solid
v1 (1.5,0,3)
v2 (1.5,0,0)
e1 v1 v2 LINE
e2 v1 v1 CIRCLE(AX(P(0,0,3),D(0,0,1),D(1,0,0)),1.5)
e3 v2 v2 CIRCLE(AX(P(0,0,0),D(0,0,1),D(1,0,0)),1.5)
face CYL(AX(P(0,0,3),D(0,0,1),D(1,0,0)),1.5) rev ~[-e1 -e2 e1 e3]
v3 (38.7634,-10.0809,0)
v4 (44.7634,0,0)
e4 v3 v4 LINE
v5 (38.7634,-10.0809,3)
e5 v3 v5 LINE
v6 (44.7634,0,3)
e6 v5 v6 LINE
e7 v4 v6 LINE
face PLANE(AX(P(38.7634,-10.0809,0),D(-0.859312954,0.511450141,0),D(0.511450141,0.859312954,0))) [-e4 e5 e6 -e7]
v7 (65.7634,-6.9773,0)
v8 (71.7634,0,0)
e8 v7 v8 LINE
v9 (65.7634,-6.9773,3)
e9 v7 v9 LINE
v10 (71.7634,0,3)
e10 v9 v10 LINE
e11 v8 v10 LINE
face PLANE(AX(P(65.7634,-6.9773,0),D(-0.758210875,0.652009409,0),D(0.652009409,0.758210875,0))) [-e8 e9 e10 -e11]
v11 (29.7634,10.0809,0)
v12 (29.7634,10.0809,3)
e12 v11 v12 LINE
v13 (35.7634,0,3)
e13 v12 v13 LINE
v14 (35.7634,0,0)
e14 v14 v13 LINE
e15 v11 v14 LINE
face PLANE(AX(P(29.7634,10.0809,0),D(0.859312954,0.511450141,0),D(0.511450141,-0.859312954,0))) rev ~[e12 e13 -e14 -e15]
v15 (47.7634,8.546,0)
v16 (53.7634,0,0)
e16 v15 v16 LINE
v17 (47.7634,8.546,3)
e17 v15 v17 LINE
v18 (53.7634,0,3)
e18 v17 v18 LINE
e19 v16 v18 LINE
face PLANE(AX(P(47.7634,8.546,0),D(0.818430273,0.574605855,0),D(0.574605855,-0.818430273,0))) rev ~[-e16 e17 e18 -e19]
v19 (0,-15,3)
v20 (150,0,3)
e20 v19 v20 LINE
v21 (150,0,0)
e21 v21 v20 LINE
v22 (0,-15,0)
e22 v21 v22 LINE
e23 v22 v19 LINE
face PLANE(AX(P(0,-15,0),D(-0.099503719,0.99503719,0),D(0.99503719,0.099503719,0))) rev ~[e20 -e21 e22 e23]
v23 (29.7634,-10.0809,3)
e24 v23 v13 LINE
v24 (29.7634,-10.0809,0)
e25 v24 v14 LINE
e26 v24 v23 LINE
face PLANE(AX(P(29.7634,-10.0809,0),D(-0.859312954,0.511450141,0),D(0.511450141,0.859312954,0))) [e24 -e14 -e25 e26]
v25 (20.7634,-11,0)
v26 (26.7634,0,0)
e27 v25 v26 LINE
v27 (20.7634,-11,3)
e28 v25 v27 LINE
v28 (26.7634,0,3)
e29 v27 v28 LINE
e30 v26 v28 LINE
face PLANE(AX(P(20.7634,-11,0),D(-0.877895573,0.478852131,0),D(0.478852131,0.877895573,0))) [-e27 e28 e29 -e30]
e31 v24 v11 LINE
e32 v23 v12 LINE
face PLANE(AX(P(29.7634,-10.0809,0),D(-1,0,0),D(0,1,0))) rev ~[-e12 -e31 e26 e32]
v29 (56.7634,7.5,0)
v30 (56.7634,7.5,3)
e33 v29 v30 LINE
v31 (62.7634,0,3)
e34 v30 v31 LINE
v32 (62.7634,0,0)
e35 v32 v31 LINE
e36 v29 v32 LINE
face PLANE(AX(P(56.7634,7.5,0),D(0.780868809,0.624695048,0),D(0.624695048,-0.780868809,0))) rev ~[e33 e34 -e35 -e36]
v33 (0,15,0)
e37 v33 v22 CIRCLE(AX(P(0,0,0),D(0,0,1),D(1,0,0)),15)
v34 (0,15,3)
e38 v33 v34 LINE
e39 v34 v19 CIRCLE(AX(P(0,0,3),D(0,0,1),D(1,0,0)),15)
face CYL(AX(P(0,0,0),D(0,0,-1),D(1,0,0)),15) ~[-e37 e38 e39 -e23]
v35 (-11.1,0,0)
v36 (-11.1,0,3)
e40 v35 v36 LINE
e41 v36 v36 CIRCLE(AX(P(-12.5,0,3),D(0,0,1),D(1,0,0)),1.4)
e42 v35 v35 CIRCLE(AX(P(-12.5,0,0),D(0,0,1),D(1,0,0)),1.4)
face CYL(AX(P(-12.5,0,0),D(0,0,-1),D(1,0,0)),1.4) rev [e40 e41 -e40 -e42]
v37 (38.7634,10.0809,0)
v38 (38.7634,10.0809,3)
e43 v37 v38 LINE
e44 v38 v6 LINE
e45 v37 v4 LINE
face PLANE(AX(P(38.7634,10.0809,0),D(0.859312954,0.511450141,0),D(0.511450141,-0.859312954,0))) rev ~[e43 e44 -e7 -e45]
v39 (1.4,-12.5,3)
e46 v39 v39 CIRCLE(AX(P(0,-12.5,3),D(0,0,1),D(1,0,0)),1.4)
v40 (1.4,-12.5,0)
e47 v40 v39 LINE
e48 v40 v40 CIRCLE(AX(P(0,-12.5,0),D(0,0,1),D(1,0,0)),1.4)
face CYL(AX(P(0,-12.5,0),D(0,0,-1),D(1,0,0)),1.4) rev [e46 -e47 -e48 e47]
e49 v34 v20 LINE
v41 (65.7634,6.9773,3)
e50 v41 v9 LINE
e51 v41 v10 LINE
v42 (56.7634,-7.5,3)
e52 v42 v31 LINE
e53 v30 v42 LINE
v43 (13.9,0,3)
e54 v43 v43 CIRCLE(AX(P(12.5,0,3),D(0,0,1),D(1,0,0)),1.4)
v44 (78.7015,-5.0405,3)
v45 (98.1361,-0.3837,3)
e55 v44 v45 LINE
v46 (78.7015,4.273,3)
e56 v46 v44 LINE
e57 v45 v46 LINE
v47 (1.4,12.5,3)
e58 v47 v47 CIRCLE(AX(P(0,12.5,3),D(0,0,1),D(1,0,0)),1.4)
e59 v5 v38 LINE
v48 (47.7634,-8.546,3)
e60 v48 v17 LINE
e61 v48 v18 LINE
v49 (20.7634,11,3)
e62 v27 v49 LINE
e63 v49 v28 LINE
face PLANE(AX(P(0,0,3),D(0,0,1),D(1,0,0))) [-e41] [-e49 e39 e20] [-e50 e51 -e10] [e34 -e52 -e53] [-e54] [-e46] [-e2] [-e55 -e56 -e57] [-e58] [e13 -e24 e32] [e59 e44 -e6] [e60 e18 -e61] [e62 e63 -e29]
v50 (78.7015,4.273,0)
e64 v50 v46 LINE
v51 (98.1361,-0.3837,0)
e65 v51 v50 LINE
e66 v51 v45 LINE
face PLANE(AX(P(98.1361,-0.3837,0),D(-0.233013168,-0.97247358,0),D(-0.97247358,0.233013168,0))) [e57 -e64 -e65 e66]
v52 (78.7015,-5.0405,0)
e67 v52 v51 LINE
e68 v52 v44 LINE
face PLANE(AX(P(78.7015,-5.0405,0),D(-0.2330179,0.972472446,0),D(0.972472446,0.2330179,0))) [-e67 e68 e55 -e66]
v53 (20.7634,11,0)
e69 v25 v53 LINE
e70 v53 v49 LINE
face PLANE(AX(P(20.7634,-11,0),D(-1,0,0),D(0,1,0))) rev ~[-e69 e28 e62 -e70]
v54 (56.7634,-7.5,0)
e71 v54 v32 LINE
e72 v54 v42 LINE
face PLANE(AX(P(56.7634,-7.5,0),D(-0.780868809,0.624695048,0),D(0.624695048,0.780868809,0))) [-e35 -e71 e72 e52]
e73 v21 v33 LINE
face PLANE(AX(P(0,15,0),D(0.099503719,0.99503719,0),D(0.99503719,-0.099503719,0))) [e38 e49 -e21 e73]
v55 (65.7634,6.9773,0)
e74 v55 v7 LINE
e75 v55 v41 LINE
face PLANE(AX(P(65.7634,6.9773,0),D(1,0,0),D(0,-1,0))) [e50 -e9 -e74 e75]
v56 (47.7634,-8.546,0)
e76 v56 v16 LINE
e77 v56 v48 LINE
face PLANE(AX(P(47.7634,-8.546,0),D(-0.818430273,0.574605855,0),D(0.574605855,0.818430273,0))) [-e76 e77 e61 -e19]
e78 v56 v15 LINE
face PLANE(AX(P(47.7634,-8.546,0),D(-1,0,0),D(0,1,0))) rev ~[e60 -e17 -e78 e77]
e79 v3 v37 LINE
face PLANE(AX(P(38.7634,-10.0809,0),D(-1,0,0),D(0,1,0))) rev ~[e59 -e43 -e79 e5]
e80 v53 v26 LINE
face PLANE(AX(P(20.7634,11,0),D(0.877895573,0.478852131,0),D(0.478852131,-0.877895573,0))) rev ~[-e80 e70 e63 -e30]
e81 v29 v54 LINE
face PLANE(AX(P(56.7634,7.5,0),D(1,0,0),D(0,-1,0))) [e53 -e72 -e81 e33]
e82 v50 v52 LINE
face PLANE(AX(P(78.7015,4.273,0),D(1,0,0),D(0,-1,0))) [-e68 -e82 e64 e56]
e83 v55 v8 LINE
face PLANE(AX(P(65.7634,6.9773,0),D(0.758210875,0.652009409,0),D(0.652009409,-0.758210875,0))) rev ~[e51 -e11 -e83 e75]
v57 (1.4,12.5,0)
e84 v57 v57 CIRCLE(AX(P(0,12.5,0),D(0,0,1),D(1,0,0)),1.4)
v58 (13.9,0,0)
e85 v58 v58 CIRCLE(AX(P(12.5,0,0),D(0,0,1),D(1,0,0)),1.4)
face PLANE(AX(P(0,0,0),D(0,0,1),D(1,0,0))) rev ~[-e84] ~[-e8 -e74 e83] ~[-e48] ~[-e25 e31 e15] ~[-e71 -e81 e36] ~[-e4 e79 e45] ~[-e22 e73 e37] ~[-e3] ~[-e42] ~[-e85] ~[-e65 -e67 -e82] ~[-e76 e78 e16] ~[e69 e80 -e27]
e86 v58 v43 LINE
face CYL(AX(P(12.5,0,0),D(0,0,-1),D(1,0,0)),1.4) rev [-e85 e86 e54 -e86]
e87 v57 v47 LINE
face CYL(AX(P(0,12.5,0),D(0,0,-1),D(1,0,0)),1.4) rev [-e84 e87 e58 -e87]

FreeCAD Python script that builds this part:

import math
import FreeCAD as App
import Part
import Sketcher
from FreeCAD import Vector
Q = App.Units.Quantity

doc = App.newDocument("Part")
body = doc.addObject("PartDesign::Body", "Body")

sketch1 = body.newObject("Sketcher::SketchObject", "Sketch")
sketch1.AttachmentSupport = (doc.getObject("XY_Plane"), [""])
sketch1.MapMode = "FlatFace"
sketch1.addGeometry([
    Part.ArcOfCircle(Part.Circle(Vector(0, 0, 0), Vector(0, 0, 1), 15), math.radians(90), math.radians(270)),
    Part.LineSegment(Vector(0, -15, 0), Vector(150, 0, 0)),
    Part.LineSegment(Vector(150, 0, 0), Vector(0, 15, 0)),
    Part.Circle(Vector(0, -12.5, 0), Vector(0, 0, 1), 1.4),
    Part.Circle(Vector(-12.5, 0, 0), Vector(0, 0, 1), 1.4),
    Part.Circle(Vector(12.5, 0, 0), Vector(0, 0, 1), 1.4),
    Part.Circle(Vector(0, 12.5, 0), Vector(0, 0, 1), 1.4),
    Part.LineSegment(Vector(78.7015, -5.0405, 0), Vector(78.7015, 4.273, 0)),
    Part.LineSegment(Vector(78.7015, 4.273, 0), Vector(98.1361, -0.3837, 0)),
    Part.LineSegment(Vector(98.1361, -0.3837, 0), Vector(78.7015, -5.0405, 0)),
    Part.LineSegment(Vector(20.7634, -11, 0), Vector(20.7634, 11, 0)),
    Part.LineSegment(Vector(20.7634, 11, 0), Vector(26.7634, 0, 0)),
    Part.LineSegment(Vector(26.7634, 0, 0), Vector(20.7634, -11, 0)),
    Part.LineSegment(Vector(29.7634, -10.0809, 0), Vector(29.7634, 10.0809, 0)),
    Part.LineSegment(Vector(29.7634, 10.0809, 0), Vector(35.7634, 0, 0)),
    Part.LineSegment(Vector(35.7634, 0, 0), Vector(29.7634, -10.0809, 0)),
    Part.LineSegment(Vector(38.7634, -10.0809, 0), Vector(38.7634, 10.0809, 0)),
    Part.LineSegment(Vector(38.7634, 10.0809, 0), Vector(44.7634, 0, 0)),
    Part.LineSegment(Vector(44.7634, 0, 0), Vector(38.7634, -10.0809, 0)),
    Part.LineSegment(Vector(47.7634, -8.546, 0), Vector(47.7634, 8.546, 0)),
    Part.LineSegment(Vector(47.7634, 8.546, 0), Vector(53.7634, 0, 0)),
    Part.LineSegment(Vector(53.7634, 0, 0), Vector(47.7634, -8.546, 0)),
    Part.LineSegment(Vector(56.7634, -7.5, 0), Vector(56.7634, 7.5, 0)),
    Part.LineSegment(Vector(56.7634, 7.5, 0), Vector(62.7634, 0, 0)),
    Part.LineSegment(Vector(62.7634, 0, 0), Vector(56.7634, -7.5, 0)),
    Part.LineSegment(Vector(65.7634, -6.9773, 0), Vector(65.7634, 6.9773, 0)),
    Part.LineSegment(Vector(65.7634, 6.9773, 0), Vector(71.7634, 0, 0)),
    Part.LineSegment(Vector(71.7634, 0, 0), Vector(65.7634, -6.9773, 0)),
], False)
sketch1.addConstraint([
    Sketcher.Constraint("Coincident", 0, 2, 1, 1),
    Sketcher.Constraint("Coincident", 1, 2, 2, 1),
    Sketcher.Constraint("Coincident", 2, 2, 0, 1),
    Sketcher.Constraint("Coincident", 7, 2, 8, 1),
    Sketcher.Constraint("Coincident", 8, 2, 9, 1),
    Sketcher.Constraint("Coincident", 9, 2, 7, 1),
    Sketcher.Constraint("Coincident", 10, 2, 11, 1),
    Sketcher.Constraint("Coincident", 11, 2, 12, 1),
    Sketcher.Constraint("Coincident", 12, 2, 10, 1),
    Sketcher.Constraint("Coincident", 13, 2, 14, 1),
    Sketcher.Constraint("Coincident", 14, 2, 15, 1),
    Sketcher.Constraint("Coincident", 15, 2, 13, 1),
    Sketcher.Constraint("Coincident", 16, 2, 17, 1),
    Sketcher.Constraint("Coincident", 17, 2, 18, 1),
    Sketcher.Constraint("Coincident", 18, 2, 16, 1),
    Sketcher.Constraint("Coincident", 19, 2, 20, 1),
    Sketcher.Constraint("Coincident", 20, 2, 21, 1),
    Sketcher.Constraint("Coincident", 21, 2, 19, 1),
    Sketcher.Constraint("Coincident", 22, 2, 23, 1),
    Sketcher.Constraint("Coincident", 23, 2, 24, 1),
    Sketcher.Constraint("Coincident", 24, 2, 22, 1),
    Sketcher.Constraint("Coincident", 25, 2, 26, 1),
    Sketcher.Constraint("Coincident", 26, 2, 27, 1),
    Sketcher.Constraint("Coincident", 27, 2, 25, 1),
    Sketcher.Constraint("Vertical", 7),
    Sketcher.Constraint("Vertical", 10),
    Sketcher.Constraint("Vertical", 13),
    Sketcher.Constraint("Vertical", 16),
    Sketcher.Constraint("Vertical", 19),
    Sketcher.Constraint("Vertical", 22),
    Sketcher.Constraint("Vertical", 25),
    Sketcher.Constraint("Coincident", 0, 3, -1, 1),
    Sketcher.Constraint("Equal", 3, 4),
    Sketcher.Constraint("Equal", 4, 5),
    Sketcher.Constraint("Equal", 5, 6),
    Sketcher.Constraint("Symmetric", 4, 3, 5, 3, -1, 1),
    Sketcher.Constraint("Symmetric", 3, 3, 6, 3, -1, 1),
    Sketcher.Constraint("PointOnObject", 3, 3, -2),
    Sketcher.Constraint("PointOnObject", 4, 3, -1),
    Sketcher.Constraint("PointOnObject", 0, 2, -2),
    Sketcher.Constraint("PointOnObject", 1, 2, -1),
    Sketcher.Constraint("PointOnObject", 2, 2, -2),
    Sketcher.Constraint("PointOnObject", 11, 2, -1),
    Sketcher.Constraint("PointOnObject", 14, 2, -1),
    Sketcher.Constraint("PointOnObject", 17, 2, -1),
    Sketcher.Constraint("PointOnObject", 20, 2, -1),
    Sketcher.Constraint("PointOnObject", 23, 2, -1),
    Sketcher.Constraint("PointOnObject", 26, 2, -1),
    Sketcher.Constraint("Parallel", 14, 17),
    Sketcher.Constraint("Parallel", 15, 18),
    Sketcher.Constraint("Horizontal", 13, 2, 16, 2),
    Sketcher.Constraint("Equal", 8, 9),
    Sketcher.Constraint("Equal", 11, 12),
    Sketcher.Constraint("Equal", 14, 15),
    Sketcher.Constraint("Equal", 20, 21),
    Sketcher.Constraint("Equal", 23, 24),
    Sketcher.Constraint("Equal", 26, 27),
    Sketcher.Constraint("Radius", 0, Q("15 mm")),
    Sketcher.Constraint("Diameter", 3, Q("2.8 mm")),
    Sketcher.Constraint("DistanceY", 10, 1, 10, 2, Q("22 mm")),
    Sketcher.Constraint("DistanceX", -1, 1, 1, 2, Q("150 mm")),
    Sketcher.Constraint("DistanceX", 10, 2, 11, 2, Q("6 mm")),
    Sketcher.Constraint("DistanceX", 10, 2, 13, 2, Q("9 mm")),
    Sketcher.Constraint("DistanceX", 11, 2, 14, 2, Q("9 mm")),
    Sketcher.Constraint("DistanceX", 13, 2, 16, 2, Q("9 mm")),
    Sketcher.Constraint("DistanceX", 16, 2, 19, 2, Q("9 mm")),
    Sketcher.Constraint("DistanceX", 17, 2, 20, 2, Q("9 mm")),
    Sketcher.Constraint("DistanceX", 19, 2, 22, 2, Q("9 mm")),
    Sketcher.Constraint("DistanceX", 20, 2, 23, 2, Q("9 mm")),
    Sketcher.Constraint("DistanceX", 22, 2, 25, 2, Q("9 mm")),
    Sketcher.Constraint("DistanceX", 23, 2, 26, 2, Q("9 mm")),
    Sketcher.Constraint("DistanceY", 3, 3, -1, 1, Q("12.5 mm")),
    Sketcher.Constraint("DistanceX", 4, 3, -1, 1, Q("12.5 mm")),
    Sketcher.Constraint("DistanceY", 22, 1, 22, 2, Q("15 mm")),
    Sketcher.Constraint("Angle", 14, Q("-59.2395 deg")),
    Sketcher.Constraint("DistanceY", 19, 1, 19, 2, Q("17.092 mm")),
    Sketcher.Constraint("DistanceY", 7, 1, 7, 2, Q("9.3135 mm")),
    Sketcher.Constraint("DistanceY", 25, 1, 25, 2, Q("13.9546 mm")),
    Sketcher.Constraint("DistanceY", -1, 1, 7, 2, Q("4.273 mm")),
    Sketcher.Constraint("DistanceX", -1, 1, 8, 2, Q("98.136 mm")),
    Sketcher.Constraint("DistanceX", 23, 2, 7, 2, Q("15.938 mm")),
    Sketcher.Constraint("Distance", 8, Q("19.9847 mm")),
])
pad1 = body.newObject("PartDesign::Pad", "Pad")
pad1.Profile = sketch1
pad1.Length = 3

sketch2 = body.newObject("Sketcher::SketchObject", "Sketch001")
sketch2.AttachmentSupport = (doc.getObject("XY_Plane"), [""])
sketch2.MapMode = "FlatFace"
sketch2.AttachmentOffset = App.Placement(Vector(0, 0, 3), App.Rotation())
sketch2.addGeometry(Part.Circle(Vector(0, 0, 0), Vector(0, 0, 1), 1.5), False)
sketch2.addConstraint([
    Sketcher.Constraint("Coincident", 0, 3, -1, 1),
    Sketcher.Constraint("Diameter", 0, Q("3 mm")),
])
pocket1 = body.newObject("PartDesign::Pocket", "Pocket")
pocket1.Profile = sketch2
pocket1.Type = "ThroughAll"

doc.recompute()
